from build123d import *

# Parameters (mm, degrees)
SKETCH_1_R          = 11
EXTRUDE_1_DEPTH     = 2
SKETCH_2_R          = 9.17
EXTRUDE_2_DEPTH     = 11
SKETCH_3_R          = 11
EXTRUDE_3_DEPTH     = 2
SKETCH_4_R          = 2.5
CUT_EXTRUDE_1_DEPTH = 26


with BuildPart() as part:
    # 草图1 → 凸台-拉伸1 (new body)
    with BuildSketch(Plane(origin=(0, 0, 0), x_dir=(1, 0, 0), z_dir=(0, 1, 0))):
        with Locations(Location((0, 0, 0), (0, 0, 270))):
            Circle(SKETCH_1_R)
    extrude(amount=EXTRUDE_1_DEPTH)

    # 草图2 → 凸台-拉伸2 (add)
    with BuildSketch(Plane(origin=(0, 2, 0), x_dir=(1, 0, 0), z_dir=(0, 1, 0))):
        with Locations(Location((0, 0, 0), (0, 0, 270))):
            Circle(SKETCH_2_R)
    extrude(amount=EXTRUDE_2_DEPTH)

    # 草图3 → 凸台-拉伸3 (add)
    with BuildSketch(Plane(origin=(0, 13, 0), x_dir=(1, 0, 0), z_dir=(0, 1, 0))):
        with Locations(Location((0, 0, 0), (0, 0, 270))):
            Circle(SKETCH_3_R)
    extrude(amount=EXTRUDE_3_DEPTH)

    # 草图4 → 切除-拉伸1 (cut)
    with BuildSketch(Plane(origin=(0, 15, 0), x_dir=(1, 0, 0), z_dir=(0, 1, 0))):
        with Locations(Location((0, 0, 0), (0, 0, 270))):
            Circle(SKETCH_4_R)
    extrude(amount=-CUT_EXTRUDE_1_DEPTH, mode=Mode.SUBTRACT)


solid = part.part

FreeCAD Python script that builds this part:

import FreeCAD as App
import Part
import Sketcher

V = App.Vector

doc = App.newDocument("Part")
body = doc.addObject("PartDesign::Body", "Body")

sketch1 = body.newObject("Sketcher::SketchObject", "Sketch")
sketch1.AttachmentSupport = (doc.getObject("XZ_Plane"), [""])
sketch1.MapMode = "FlatFace"
sketch1.addGeometry(Part.Circle(V(0, 0, 0), V(0, 0, 1), 11), False)
sketch1.addConstraint(Sketcher.Constraint("Coincident", 0, 3, -1, 1))
sketch1.addConstraint(Sketcher.Constraint("Diameter", 0, 22.0))
pad1 = body.newObject("PartDesign::Pad", "Pad")
pad1.Profile = sketch1
pad1.Length = 2
pad1.Reversed = True

sketch2 = body.newObject("Sketcher::SketchObject", "Sketch001")
sketch2.AttachmentSupport = (doc.getObject("XZ_Plane"), [""])
sketch2.MapMode = "FlatFace"
sketch2.AttachmentOffset = App.Placement(V(0, 0, -2), App.Rotation())
sketch2.addGeometry(Part.Circle(V(0, 0, 0), V(0, 0, 1), 9), False)
sketch2.addConstraint(Sketcher.Constraint("Coincident", 0, 3, -1, 1))
sketch2.addConstraint(Sketcher.Constraint("Diameter", 0, 18.34))
pad2 = body.newObject("PartDesign::Pad", "Pad001")
pad2.Profile = sketch2
pad2.Length = 11
pad2.Reversed = True

sketch3 = body.newObject("Sketcher::SketchObject", "Sketch002")
sketch3.AttachmentSupport = (doc.getObject("XZ_Plane"), [""])
sketch3.MapMode = "FlatFace"
sketch3.AttachmentOffset = App.Placement(V(0, 0, -13), App.Rotation())
sketch3.addGeometry(Part.Circle(V(0, 0, 0), V(0, 0, 1), 11), False)
sketch3.addConstraint(Sketcher.Constraint("Coincident", 0, 3, -1, 1))
sketch3.addConstraint(Sketcher.Constraint("Diameter", 0, 22.0))
pad3 = body.newObject("PartDesign::Pad", "Pad002")
pad3.Profile = sketch3
pad3.Length = 2
pad3.Reversed = True

sketch4 = body.newObject("Sketcher::SketchObject", "Sketch003")
sketch4.AttachmentSupport = (doc.getObject("XZ_Plane"), [""])
sketch4.MapMode = "FlatFace"
sketch4.AttachmentOffset = App.Placement(V(0, 0, -15), App.Rotation())
sketch4.addGeometry(Part.Circle(V(0, 0, 0), V(0, 0, 1), 2.5), False)
sketch4.addConstraint(Sketcher.Constraint("Coincident", 0, 3, -1, 1))
sketch4.addConstraint(Sketcher.Constraint("Diameter", 0, 5.0))
pocket1 = body.newObject("PartDesign::Pocket", "Pocket")
pocket1.Profile = sketch4
pocket1.Length = 26
pocket1.Reversed = True

doc.recompute()
